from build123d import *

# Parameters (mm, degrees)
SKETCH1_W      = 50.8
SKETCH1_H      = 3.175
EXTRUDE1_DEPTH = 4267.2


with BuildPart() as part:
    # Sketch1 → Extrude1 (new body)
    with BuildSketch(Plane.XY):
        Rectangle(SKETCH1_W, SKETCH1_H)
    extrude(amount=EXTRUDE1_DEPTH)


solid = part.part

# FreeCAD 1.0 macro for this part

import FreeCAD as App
import Part
import Sketcher
from FreeCAD import Vector
Q = App.Units.Quantity


def add_polygon(sketch, points):
    """Adds a closed chain of lines whose ends are joined by coincident constraints."""
    first, n = sketch.GeometryCount, len(points)
    for a, b in zip(points, points[1:] + points[:1]):
        sketch.addGeometry(Part.LineSegment(App.Vector(*a, 0), App.Vector(*b, 0)), False)
    for i in range(n):
        sketch.addConstraint(Sketcher.Constraint("Coincident", first + i, 2, first + (i + 1) % n, 1))

doc = App.newDocument("Part")
body = doc.addObject("PartDesign::Body", "Body")

sketch1 = doc.addObject("Sketcher::SketchObject", "Sketch")
body.addObject(sketch1)
sketch1.AttachmentSupport = (doc.XY_Plane, [""])
sketch1.MapMode = "FlatFace"
add_polygon(sketch1, [(-25.4, 1.6), (-25.4, -1.6), (25.4, -1.6), (25.4, 1.6)])
sketch1.addConstraint([
    Sketcher.Constraint("Vertical", 0),
    Sketcher.Constraint("Horizontal", 1),
    Sketcher.Constraint("Vertical", 2),
    Sketcher.Constraint("Horizontal", 3),
    Sketcher.Constraint("Symmetric", 0, 2, 2, 2, -1, 1),
    Sketcher.Constraint("DistanceX", 1, 1, 1, 2, Q("2 in")),
    Sketcher.Constraint("DistanceY", 0, 2, 0, 1, Q("0.125 in")),
])
pad1 = doc.addObject("PartDesign::Pad", "Pad")
body.addObject(pad1)
pad1.Profile = sketch1
pad1.Length = Q("168 in")

doc.recompute()
